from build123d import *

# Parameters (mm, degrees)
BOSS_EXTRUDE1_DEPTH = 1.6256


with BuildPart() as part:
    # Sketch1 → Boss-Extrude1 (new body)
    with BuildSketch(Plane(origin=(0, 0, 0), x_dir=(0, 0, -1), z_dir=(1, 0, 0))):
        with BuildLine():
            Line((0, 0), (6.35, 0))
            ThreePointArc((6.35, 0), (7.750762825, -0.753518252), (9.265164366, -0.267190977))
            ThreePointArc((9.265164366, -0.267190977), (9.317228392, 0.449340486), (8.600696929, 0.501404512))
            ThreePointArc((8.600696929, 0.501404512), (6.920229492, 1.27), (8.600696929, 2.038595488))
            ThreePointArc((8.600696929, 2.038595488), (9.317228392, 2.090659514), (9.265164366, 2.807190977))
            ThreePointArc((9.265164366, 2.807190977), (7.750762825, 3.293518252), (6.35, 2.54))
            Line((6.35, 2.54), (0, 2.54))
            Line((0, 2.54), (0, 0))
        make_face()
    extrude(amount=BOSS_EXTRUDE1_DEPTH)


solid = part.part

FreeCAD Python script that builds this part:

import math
import FreeCAD as App
import Part
import Sketcher
from FreeCAD import Vector
Q = App.Units.Quantity

doc = App.newDocument("Part")
body = doc.addObject("PartDesign::Body", "Body")

sketch1 = doc.addObject("Sketcher::SketchObject", "Sketch")
body.addObject(sketch1)
sketch1.AttachmentSupport = (doc.YZ_Plane, [""])
sketch1.MapMode = "FlatFace"
sketch1.addGeometry(Part.LineSegment(Vector(0, 0, 0), Vector(0, -6.35, 0)), False)
sketch1.addGeometry(Part.ArcOfCircle(Part.Circle(Vector(1.27, -7.936229, 0), Vector(0, 0, 1), 2.032), math.radians(128.682187), math.radians(220.844124)), False)
sketch1.addGeometry(Part.ArcOfCircle(Part.Circle(Vector(0.117107, -8.932931, 0), Vector(0, 0, 1), 0.508), math.radians(-139.155876), math.radians(40.844124)), False)
sketch1.addGeometry(Part.ArcOfCircle(Part.Circle(Vector(1.27, -7.936229, 0), Vector(0, 0, 1), 1.016), math.radians(-40.844124), math.radians(220.844124)), False)
sketch1.addGeometry(Part.ArcOfCircle(Part.Circle(Vector(2.422893, -8.932931, 0), Vector(0, 0, 1), 0.508), math.radians(139.155876), math.radians(319.155876)), False)
sketch1.addGeometry(Part.ArcOfCircle(Part.Circle(Vector(1.27, -7.936229, 0), Vector(0, 0, 1), 2.032), math.radians(-40.844124), math.radians(51.317813)), False)
sketch1.addGeometry(Part.LineSegment(Vector(2.54, -6.35, 0), Vector(2.54, 0, 0)), False)
sketch1.addGeometry(Part.LineSegment(Vector(2.54, 0, 0), Vector(0, 0, 0)), False)
sketch1.addConstraint(Sketcher.Constraint("Coincident", 0, 2, 1, 1))
sketch1.addConstraint(Sketcher.Constraint("Tangent", 1, 2, 2, 1))
sketch1.addConstraint(Sketcher.Constraint("Tangent", 2, 2, 3, 2))
sketch1.addConstraint(Sketcher.Constraint("Tangent", 3, 1, 4, 1))
sketch1.addConstraint(Sketcher.Constraint("Tangent", 4, 2, 5, 1))
sketch1.addConstraint(Sketcher.Constraint("Coincident", 5, 2, 6, 1))
sketch1.addConstraint(Sketcher.Constraint("Coincident", 6, 2, 7, 1))
sketch1.addConstraint(Sketcher.Constraint("Coincident", 7, 2, 0, 1))
sketch1.addConstraint(Sketcher.Constraint("Vertical", 0))
sketch1.addConstraint(Sketcher.Constraint("Vertical", 6))
sketch1.addConstraint(Sketcher.Constraint("Horizontal", 7))
sketch1.addConstraint(Sketcher.Constraint("Coincident", 7, 2, -1, 1))
sketch1.addConstraint(Sketcher.Constraint("Coincident", 3, 3, 1, 3))
sketch1.addConstraint(Sketcher.Constraint("Coincident", 5, 3, 1, 3))
sketch1.addConstraint(Sketcher.Constraint("Equal", 2, 4))
sketch1.addConstraint(Sketcher.Constraint("Horizontal", 2, 3, 4, 3))
sketch1.addConstraint(Sketcher.Constraint("Horizontal", 0, 2, 5, 2))
sketch1.addConstraint(Sketcher.Constraint("Radius", 1, Q("0.08 in")))
sketch1.addConstraint(Sketcher.Constraint("Radius", 2, Q("0.02 in")))
sketch1.addConstraint(Sketcher.Constraint("DistanceX", 7, 2, 7, 1, Q("0.1 in")))
sketch1.addConstraint(Sketcher.Constraint("DistanceY", 0, 2, 0, 1, Q("0.25 in")))
sketch1.addConstraint(Sketcher.Constraint("DistanceY", 2, 3, 1, 3, 0.996701))
pad1 = doc.addObject("PartDesign::Pad", "Pad")
body.addObject(pad1)
pad1.Profile = sketch1
pad1.Length = Q("0.064 in")

doc.recompute()
